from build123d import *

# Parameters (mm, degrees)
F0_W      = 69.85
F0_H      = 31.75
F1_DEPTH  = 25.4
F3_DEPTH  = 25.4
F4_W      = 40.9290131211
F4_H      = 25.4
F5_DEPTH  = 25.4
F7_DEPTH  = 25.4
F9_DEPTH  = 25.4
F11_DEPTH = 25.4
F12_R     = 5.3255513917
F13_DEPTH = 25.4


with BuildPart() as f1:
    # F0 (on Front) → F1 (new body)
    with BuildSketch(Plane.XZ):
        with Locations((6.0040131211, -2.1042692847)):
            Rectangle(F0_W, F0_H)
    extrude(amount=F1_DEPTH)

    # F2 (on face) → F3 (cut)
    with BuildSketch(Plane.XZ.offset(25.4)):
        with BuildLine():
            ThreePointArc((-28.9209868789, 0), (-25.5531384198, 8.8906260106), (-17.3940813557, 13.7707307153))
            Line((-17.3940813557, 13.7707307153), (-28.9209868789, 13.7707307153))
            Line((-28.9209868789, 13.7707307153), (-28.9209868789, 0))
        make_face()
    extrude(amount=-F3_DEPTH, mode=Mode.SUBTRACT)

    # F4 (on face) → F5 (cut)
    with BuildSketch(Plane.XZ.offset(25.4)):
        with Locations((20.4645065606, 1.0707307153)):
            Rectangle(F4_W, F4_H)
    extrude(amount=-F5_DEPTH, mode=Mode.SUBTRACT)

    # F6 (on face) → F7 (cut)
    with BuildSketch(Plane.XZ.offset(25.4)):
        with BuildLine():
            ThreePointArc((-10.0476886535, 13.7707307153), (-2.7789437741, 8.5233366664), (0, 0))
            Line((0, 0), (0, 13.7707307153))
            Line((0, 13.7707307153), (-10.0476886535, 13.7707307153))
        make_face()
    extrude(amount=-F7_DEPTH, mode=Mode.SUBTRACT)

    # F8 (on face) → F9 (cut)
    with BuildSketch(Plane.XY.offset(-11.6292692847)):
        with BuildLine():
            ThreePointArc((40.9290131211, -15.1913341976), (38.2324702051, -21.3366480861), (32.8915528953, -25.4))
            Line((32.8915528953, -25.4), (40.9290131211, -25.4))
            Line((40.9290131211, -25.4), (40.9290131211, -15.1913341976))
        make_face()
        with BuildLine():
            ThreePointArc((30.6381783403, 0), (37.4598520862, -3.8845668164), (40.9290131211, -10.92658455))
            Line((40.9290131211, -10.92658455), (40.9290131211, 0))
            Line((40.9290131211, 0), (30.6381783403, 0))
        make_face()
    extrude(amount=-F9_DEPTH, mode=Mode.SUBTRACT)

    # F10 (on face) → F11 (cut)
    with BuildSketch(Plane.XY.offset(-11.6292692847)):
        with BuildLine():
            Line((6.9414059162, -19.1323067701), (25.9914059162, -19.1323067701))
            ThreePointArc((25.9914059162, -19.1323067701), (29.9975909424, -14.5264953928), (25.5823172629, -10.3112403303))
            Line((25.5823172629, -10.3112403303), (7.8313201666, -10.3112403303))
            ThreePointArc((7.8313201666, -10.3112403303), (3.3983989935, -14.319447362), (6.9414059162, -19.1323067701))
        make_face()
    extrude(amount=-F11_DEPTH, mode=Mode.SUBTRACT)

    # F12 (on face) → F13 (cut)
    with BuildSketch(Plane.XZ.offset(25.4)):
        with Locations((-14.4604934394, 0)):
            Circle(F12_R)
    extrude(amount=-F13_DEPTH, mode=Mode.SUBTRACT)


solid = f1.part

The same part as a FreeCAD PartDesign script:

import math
import FreeCAD as App
import Part
import Sketcher
Q = App.Units.Quantity


def add_polygon(sketch, points):
    """Adds a closed chain of lines whose ends are joined by coincident constraints."""
    first, n = sketch.GeometryCount, len(points)
    for a, b in zip(points, points[1:] + points[:1]):
        sketch.addGeometry(Part.LineSegment(App.Vector(*a, 0), App.Vector(*b, 0)), False)
    for i in range(n):
        sketch.addConstraint(Sketcher.Constraint("Coincident", first + i, 2, first + (i + 1) % n, 1))

doc = App.newDocument("Part")
body = doc.addObject("PartDesign::Body", "Body")

sketch1 = body.newObject("Sketcher::SketchObject", "Sketch")
sketch1.AttachmentSupport = (doc.getObject("XZ_Plane"), [""])
sketch1.MapMode = "FlatFace"
add_polygon(sketch1, [(-29, 14), (-29, -18), (41, -18), (41, 14)])
sketch1.addConstraint([
    Sketcher.Constraint("Vertical", 0),
    Sketcher.Constraint("Horizontal", 1),
    Sketcher.Constraint("Vertical", 2),
    Sketcher.Constraint("Horizontal", 3),
    Sketcher.Constraint("DistanceX", 1, 1, 1, 2, Q("2.75 in")),
    Sketcher.Constraint("DistanceY", 0, 2, 0, 1, Q("1.25 in")),
    Sketcher.Constraint("DistanceY", 0, 2, -1, 1, Q("17.979269 mm")),
    Sketcher.Constraint("DistanceX", 0, 2, -1, 1, Q("28.920987 mm")),
])
pad1 = body.newObject("PartDesign::Pad", "Pad")
pad1.Profile = sketch1
pad1.Length = Q("1 in")

sketch2 = body.newObject("Sketcher::SketchObject", "Sketch001")
sketch2.AttachmentSupport = (doc.getObject("XZ_Plane"), [""])
sketch2.MapMode = "FlatFace"
sketch2.AttachmentOffset = App.Placement(App.Vector(0, 0, 1 * 25.4), App.Rotation())
sketch2.addGeometry([
    Part.ArcOfCircle(Part.Circle(App.Vector(-14, 0, 0), App.Vector(0, 0, 1), 14), math.radians(102), math.radians(178)),
    Part.LineSegment(App.Vector(-17, 14, 0), App.Vector(-29, 14, 0)),
    Part.LineSegment(App.Vector(-29, 14, 0), App.Vector(-29, 0, 0)),
], False)
sketch2.addConstraint([
    Sketcher.Constraint("Coincident", 0, 1, 1, 1),
    Sketcher.Constraint("Coincident", 1, 2, 2, 1),
    Sketcher.Constraint("Coincident", 2, 2, 0, 2),
    Sketcher.Constraint("Horizontal", 1),
    Sketcher.Constraint("Vertical", 2),
    Sketcher.Constraint("PointOnObject", 2, 2, -1),
    Sketcher.Constraint("Radius", 0, Q("14.465875 mm")),
    Sketcher.Constraint("DistanceY", 2, 2, 2, 1, Q("13.770731 mm")),
    Sketcher.Constraint("DistanceX", 1, 2, 1, 1, Q("11.526906 mm")),
    Sketcher.Constraint("DistanceX", 0, 1, -1, 1, Q("17.394081 mm")),
])
pocket1 = body.newObject("PartDesign::Pocket", "Pocket")
pocket1.Profile = sketch2
pocket1.Length = Q("1 in")

sketch3 = body.newObject("Sketcher::SketchObject", "Sketch002")
sketch3.AttachmentSupport = (doc.getObject("XZ_Plane"), [""])
sketch3.MapMode = "FlatFace"
sketch3.AttachmentOffset = App.Placement(App.Vector(0, 0, 1 * 25.4), App.Rotation())
add_polygon(sketch3, [(0, 14), (0, -12), (41, -12), (41, 14)])
sketch3.addConstraint([
    Sketcher.Constraint("Vertical", 0),
    Sketcher.Constraint("Horizontal", 1),
    Sketcher.Constraint("Vertical", 2),
    Sketcher.Constraint("Horizontal", 3),
    Sketcher.Constraint("PointOnObject", 0, 2, -2),
    Sketcher.Constraint("DistanceY", 0, 2, 0, 1, Q("1 in")),
    Sketcher.Constraint("DistanceX", 1, 1, 1, 2, Q("40.929013 mm")),
    Sketcher.Constraint("DistanceY", 0, 2, -1, 1, Q("11.629269 mm")),
])
pocket2 = body.newObject("PartDesign::Pocket", "Pocket001")
pocket2.Profile = sketch3
pocket2.Length = Q("1 in")

sketch4 = body.newObject("Sketcher::SketchObject", "Sketch003")
sketch4.AttachmentSupport = (doc.getObject("XZ_Plane"), [""])
sketch4.MapMode = "FlatFace"
sketch4.AttachmentOffset = App.Placement(App.Vector(0, 0, 1 * 25.4), App.Rotation())
sketch4.addGeometry([
    Part.ArcOfCircle(Part.Circle(App.Vector(-14, 0, 0), App.Vector(0, 0, 1), 14), math.radians(0), math.radians(72)),
    Part.LineSegment(App.Vector(0, 0, 0), App.Vector(0, 14, 0)),
    Part.LineSegment(App.Vector(0, 14, 0), App.Vector(-10, 14, 0)),
], False)
sketch4.addConstraint([
    Sketcher.Constraint("Tangent", 0, 1, 1, 1),
    Sketcher.Constraint("Coincident", 1, 2, 2, 1),
    Sketcher.Constraint("Coincident", 2, 2, 0, 2),
    Sketcher.Constraint("Vertical", 1),
    Sketcher.Constraint("Horizontal", 2),
    Sketcher.Constraint("Coincident", 0, 1, -1, 1),
    Sketcher.Constraint("Radius", 0, Q("14.460493 mm")),
    Sketcher.Constraint("DistanceX", 2, 2, 2, 1, Q("10.047689 mm")),
])
pocket3 = body.newObject("PartDesign::Pocket", "Pocket002")
pocket3.Profile = sketch4
pocket3.Length = Q("1 in")

sketch5 = body.newObject("Sketcher::SketchObject", "Sketch004")
sketch5.AttachmentSupport = (doc.getObject("XY_Plane"), [""])
sketch5.MapMode = "FlatFace"
sketch5.AttachmentOffset = App.Placement(App.Vector(0, 0, -11.629269), App.Rotation())
sketch5.addGeometry([
    Part.ArcOfCircle(Part.Circle(App.Vector(28, -13, 0), App.Vector(0, 0, 1), 13), math.radians(-67), math.radians(-9)),
    Part.LineSegment(App.Vector(33, -25, 0), App.Vector(41, -25, 0)),
    Part.LineSegment(App.Vector(41, -25, 0), App.Vector(41, -15, 0)),
    Part.ArcOfCircle(Part.Circle(App.Vector(28, -13, 0), App.Vector(0, 0, 1), 13), math.radians(9), math.radians(77)),
    Part.LineSegment(App.Vector(41, -11, 0), App.Vector(41, 0, 0)),
    Part.LineSegment(App.Vector(41, 0, 0), App.Vector(31, 0, 0)),
], False)
sketch5.addConstraint([
    Sketcher.Constraint("Coincident", 0, 1, 1, 1),
    Sketcher.Constraint("Coincident", 1, 2, 2, 1),
    Sketcher.Constraint("Coincident", 2, 2, 0, 2),
    Sketcher.Constraint("Coincident", 3, 1, 4, 1),
    Sketcher.Constraint("Coincident", 4, 2, 5, 1),
    Sketcher.Constraint("Coincident", 5, 2, 3, 2),
    Sketcher.Constraint("Horizontal", 1),
    Sketcher.Constraint("Vertical", 2),
    Sketcher.Constraint("Vertical", 4),
    Sketcher.Constraint("Horizontal", 5),
    Sketcher.Constraint("Coincident", 3, 3, 0, 3),
    Sketcher.Constraint("Equal", 0, 3),
    Sketcher.Constraint("PointOnObject", 4, 2, -1),
    Sketcher.Constraint("Vertical", 2, 2, 3, 1),
    Sketcher.Constraint("DistanceY", 0, 1, -1, 1, Q("1 in")),
    Sketcher.Constraint("Radius", 0, Q("13.381326 mm")),
    Sketcher.Constraint("DistanceX", 1, 1, 1, 2, Q("8.03746 mm")),
    Sketcher.Constraint("DistanceX", 5, 2, 5, 1, Q("10.290835 mm")),
    Sketcher.Constraint("DistanceX", -1, 1, 0, 3, Q("27.718682 mm")),
])
pocket4 = body.newObject("PartDesign::Pocket", "Pocket003")
pocket4.Profile = sketch5
pocket4.Length = Q("1 in")

sketch6 = body.newObject("Sketcher::SketchObject", "Sketch005")
sketch6.AttachmentSupport = (doc.getObject("XY_Plane"), [""])
sketch6.MapMode = "FlatFace"
sketch6.AttachmentOffset = App.Placement(App.Vector(0, 0, -11.629269), App.Rotation())
sketch6.addGeometry([
    Part.LineSegment(App.Vector(6.9, -19.1, 0), App.Vector(26, -19.1, 0)),
    Part.ArcOfCircle(Part.Circle(App.Vector(25.6, -14.7, 0), App.Vector(0, 0, 1), 4.4), math.radians(-85), math.radians(90)),
    Part.LineSegment(App.Vector(25.6, -10.3, 0), App.Vector(7.8, -10.3, 0)),
    Part.ArcOfCircle(Part.Circle(App.Vector(7.8, -14.8, 0), App.Vector(0, 0, 1), 4.5), math.radians(90), math.radians(258)),
], False)
sketch6.addConstraint([
    Sketcher.Constraint("Coincident", 0, 2, 1, 1),
    Sketcher.Constraint("Tangent", 1, 2, 2, 1),
    Sketcher.Constraint("Tangent", 2, 2, 3, 1),
    Sketcher.Constraint("Coincident", 3, 2, 0, 1),
    Sketcher.Constraint("Horizontal", 0),
    Sketcher.Constraint("Horizontal", 2),
    Sketcher.Constraint("DistanceX", 0, 1, 0, 2, Q("0.75 in")),
    Sketcher.Constraint("Radius", 1, Q("4.420019 mm")),
    Sketcher.Constraint("Radius", 3, Q("4.455423 mm")),
    Sketcher.Constraint("DistanceX", 2, 2, 2, 1, Q("17.750997 mm")),
    Sketcher.Constraint("DistanceY", 1, 3, -1, 1, Q("14.73126 mm")),
    Sketcher.Constraint("DistanceX", -1, 1, 3, 3, Q("7.83132 mm")),
])
pocket5 = body.newObject("PartDesign::Pocket", "Pocket004")
pocket5.Profile = sketch6
pocket5.Length = Q("1 in")

sketch7 = body.newObject("Sketcher::SketchObject", "Sketch006")
sketch7.AttachmentSupport = (doc.getObject("XZ_Plane"), [""])
sketch7.MapMode = "FlatFace"
sketch7.AttachmentOffset = App.Placement(App.Vector(0, 0, 1 * 25.4), App.Rotation())
sketch7.addGeometry(Part.Circle(App.Vector(-14, 0, 0), App.Vector(0, 0, 1), 5), False)
sketch7.addConstraint([
    Sketcher.Constraint("PointOnObject", 0, 3, -1),
    Sketcher.Constraint("Diameter", 0, Q("10.651103 mm")),
    Sketcher.Constraint("DistanceX", 0, 3, -1, 1, Q("14.460493 mm")),
])
pocket6 = body.newObject("PartDesign::Pocket", "Pocket005")
pocket6.Profile = sketch7
pocket6.Length = Q("1 in")

doc.recompute()
